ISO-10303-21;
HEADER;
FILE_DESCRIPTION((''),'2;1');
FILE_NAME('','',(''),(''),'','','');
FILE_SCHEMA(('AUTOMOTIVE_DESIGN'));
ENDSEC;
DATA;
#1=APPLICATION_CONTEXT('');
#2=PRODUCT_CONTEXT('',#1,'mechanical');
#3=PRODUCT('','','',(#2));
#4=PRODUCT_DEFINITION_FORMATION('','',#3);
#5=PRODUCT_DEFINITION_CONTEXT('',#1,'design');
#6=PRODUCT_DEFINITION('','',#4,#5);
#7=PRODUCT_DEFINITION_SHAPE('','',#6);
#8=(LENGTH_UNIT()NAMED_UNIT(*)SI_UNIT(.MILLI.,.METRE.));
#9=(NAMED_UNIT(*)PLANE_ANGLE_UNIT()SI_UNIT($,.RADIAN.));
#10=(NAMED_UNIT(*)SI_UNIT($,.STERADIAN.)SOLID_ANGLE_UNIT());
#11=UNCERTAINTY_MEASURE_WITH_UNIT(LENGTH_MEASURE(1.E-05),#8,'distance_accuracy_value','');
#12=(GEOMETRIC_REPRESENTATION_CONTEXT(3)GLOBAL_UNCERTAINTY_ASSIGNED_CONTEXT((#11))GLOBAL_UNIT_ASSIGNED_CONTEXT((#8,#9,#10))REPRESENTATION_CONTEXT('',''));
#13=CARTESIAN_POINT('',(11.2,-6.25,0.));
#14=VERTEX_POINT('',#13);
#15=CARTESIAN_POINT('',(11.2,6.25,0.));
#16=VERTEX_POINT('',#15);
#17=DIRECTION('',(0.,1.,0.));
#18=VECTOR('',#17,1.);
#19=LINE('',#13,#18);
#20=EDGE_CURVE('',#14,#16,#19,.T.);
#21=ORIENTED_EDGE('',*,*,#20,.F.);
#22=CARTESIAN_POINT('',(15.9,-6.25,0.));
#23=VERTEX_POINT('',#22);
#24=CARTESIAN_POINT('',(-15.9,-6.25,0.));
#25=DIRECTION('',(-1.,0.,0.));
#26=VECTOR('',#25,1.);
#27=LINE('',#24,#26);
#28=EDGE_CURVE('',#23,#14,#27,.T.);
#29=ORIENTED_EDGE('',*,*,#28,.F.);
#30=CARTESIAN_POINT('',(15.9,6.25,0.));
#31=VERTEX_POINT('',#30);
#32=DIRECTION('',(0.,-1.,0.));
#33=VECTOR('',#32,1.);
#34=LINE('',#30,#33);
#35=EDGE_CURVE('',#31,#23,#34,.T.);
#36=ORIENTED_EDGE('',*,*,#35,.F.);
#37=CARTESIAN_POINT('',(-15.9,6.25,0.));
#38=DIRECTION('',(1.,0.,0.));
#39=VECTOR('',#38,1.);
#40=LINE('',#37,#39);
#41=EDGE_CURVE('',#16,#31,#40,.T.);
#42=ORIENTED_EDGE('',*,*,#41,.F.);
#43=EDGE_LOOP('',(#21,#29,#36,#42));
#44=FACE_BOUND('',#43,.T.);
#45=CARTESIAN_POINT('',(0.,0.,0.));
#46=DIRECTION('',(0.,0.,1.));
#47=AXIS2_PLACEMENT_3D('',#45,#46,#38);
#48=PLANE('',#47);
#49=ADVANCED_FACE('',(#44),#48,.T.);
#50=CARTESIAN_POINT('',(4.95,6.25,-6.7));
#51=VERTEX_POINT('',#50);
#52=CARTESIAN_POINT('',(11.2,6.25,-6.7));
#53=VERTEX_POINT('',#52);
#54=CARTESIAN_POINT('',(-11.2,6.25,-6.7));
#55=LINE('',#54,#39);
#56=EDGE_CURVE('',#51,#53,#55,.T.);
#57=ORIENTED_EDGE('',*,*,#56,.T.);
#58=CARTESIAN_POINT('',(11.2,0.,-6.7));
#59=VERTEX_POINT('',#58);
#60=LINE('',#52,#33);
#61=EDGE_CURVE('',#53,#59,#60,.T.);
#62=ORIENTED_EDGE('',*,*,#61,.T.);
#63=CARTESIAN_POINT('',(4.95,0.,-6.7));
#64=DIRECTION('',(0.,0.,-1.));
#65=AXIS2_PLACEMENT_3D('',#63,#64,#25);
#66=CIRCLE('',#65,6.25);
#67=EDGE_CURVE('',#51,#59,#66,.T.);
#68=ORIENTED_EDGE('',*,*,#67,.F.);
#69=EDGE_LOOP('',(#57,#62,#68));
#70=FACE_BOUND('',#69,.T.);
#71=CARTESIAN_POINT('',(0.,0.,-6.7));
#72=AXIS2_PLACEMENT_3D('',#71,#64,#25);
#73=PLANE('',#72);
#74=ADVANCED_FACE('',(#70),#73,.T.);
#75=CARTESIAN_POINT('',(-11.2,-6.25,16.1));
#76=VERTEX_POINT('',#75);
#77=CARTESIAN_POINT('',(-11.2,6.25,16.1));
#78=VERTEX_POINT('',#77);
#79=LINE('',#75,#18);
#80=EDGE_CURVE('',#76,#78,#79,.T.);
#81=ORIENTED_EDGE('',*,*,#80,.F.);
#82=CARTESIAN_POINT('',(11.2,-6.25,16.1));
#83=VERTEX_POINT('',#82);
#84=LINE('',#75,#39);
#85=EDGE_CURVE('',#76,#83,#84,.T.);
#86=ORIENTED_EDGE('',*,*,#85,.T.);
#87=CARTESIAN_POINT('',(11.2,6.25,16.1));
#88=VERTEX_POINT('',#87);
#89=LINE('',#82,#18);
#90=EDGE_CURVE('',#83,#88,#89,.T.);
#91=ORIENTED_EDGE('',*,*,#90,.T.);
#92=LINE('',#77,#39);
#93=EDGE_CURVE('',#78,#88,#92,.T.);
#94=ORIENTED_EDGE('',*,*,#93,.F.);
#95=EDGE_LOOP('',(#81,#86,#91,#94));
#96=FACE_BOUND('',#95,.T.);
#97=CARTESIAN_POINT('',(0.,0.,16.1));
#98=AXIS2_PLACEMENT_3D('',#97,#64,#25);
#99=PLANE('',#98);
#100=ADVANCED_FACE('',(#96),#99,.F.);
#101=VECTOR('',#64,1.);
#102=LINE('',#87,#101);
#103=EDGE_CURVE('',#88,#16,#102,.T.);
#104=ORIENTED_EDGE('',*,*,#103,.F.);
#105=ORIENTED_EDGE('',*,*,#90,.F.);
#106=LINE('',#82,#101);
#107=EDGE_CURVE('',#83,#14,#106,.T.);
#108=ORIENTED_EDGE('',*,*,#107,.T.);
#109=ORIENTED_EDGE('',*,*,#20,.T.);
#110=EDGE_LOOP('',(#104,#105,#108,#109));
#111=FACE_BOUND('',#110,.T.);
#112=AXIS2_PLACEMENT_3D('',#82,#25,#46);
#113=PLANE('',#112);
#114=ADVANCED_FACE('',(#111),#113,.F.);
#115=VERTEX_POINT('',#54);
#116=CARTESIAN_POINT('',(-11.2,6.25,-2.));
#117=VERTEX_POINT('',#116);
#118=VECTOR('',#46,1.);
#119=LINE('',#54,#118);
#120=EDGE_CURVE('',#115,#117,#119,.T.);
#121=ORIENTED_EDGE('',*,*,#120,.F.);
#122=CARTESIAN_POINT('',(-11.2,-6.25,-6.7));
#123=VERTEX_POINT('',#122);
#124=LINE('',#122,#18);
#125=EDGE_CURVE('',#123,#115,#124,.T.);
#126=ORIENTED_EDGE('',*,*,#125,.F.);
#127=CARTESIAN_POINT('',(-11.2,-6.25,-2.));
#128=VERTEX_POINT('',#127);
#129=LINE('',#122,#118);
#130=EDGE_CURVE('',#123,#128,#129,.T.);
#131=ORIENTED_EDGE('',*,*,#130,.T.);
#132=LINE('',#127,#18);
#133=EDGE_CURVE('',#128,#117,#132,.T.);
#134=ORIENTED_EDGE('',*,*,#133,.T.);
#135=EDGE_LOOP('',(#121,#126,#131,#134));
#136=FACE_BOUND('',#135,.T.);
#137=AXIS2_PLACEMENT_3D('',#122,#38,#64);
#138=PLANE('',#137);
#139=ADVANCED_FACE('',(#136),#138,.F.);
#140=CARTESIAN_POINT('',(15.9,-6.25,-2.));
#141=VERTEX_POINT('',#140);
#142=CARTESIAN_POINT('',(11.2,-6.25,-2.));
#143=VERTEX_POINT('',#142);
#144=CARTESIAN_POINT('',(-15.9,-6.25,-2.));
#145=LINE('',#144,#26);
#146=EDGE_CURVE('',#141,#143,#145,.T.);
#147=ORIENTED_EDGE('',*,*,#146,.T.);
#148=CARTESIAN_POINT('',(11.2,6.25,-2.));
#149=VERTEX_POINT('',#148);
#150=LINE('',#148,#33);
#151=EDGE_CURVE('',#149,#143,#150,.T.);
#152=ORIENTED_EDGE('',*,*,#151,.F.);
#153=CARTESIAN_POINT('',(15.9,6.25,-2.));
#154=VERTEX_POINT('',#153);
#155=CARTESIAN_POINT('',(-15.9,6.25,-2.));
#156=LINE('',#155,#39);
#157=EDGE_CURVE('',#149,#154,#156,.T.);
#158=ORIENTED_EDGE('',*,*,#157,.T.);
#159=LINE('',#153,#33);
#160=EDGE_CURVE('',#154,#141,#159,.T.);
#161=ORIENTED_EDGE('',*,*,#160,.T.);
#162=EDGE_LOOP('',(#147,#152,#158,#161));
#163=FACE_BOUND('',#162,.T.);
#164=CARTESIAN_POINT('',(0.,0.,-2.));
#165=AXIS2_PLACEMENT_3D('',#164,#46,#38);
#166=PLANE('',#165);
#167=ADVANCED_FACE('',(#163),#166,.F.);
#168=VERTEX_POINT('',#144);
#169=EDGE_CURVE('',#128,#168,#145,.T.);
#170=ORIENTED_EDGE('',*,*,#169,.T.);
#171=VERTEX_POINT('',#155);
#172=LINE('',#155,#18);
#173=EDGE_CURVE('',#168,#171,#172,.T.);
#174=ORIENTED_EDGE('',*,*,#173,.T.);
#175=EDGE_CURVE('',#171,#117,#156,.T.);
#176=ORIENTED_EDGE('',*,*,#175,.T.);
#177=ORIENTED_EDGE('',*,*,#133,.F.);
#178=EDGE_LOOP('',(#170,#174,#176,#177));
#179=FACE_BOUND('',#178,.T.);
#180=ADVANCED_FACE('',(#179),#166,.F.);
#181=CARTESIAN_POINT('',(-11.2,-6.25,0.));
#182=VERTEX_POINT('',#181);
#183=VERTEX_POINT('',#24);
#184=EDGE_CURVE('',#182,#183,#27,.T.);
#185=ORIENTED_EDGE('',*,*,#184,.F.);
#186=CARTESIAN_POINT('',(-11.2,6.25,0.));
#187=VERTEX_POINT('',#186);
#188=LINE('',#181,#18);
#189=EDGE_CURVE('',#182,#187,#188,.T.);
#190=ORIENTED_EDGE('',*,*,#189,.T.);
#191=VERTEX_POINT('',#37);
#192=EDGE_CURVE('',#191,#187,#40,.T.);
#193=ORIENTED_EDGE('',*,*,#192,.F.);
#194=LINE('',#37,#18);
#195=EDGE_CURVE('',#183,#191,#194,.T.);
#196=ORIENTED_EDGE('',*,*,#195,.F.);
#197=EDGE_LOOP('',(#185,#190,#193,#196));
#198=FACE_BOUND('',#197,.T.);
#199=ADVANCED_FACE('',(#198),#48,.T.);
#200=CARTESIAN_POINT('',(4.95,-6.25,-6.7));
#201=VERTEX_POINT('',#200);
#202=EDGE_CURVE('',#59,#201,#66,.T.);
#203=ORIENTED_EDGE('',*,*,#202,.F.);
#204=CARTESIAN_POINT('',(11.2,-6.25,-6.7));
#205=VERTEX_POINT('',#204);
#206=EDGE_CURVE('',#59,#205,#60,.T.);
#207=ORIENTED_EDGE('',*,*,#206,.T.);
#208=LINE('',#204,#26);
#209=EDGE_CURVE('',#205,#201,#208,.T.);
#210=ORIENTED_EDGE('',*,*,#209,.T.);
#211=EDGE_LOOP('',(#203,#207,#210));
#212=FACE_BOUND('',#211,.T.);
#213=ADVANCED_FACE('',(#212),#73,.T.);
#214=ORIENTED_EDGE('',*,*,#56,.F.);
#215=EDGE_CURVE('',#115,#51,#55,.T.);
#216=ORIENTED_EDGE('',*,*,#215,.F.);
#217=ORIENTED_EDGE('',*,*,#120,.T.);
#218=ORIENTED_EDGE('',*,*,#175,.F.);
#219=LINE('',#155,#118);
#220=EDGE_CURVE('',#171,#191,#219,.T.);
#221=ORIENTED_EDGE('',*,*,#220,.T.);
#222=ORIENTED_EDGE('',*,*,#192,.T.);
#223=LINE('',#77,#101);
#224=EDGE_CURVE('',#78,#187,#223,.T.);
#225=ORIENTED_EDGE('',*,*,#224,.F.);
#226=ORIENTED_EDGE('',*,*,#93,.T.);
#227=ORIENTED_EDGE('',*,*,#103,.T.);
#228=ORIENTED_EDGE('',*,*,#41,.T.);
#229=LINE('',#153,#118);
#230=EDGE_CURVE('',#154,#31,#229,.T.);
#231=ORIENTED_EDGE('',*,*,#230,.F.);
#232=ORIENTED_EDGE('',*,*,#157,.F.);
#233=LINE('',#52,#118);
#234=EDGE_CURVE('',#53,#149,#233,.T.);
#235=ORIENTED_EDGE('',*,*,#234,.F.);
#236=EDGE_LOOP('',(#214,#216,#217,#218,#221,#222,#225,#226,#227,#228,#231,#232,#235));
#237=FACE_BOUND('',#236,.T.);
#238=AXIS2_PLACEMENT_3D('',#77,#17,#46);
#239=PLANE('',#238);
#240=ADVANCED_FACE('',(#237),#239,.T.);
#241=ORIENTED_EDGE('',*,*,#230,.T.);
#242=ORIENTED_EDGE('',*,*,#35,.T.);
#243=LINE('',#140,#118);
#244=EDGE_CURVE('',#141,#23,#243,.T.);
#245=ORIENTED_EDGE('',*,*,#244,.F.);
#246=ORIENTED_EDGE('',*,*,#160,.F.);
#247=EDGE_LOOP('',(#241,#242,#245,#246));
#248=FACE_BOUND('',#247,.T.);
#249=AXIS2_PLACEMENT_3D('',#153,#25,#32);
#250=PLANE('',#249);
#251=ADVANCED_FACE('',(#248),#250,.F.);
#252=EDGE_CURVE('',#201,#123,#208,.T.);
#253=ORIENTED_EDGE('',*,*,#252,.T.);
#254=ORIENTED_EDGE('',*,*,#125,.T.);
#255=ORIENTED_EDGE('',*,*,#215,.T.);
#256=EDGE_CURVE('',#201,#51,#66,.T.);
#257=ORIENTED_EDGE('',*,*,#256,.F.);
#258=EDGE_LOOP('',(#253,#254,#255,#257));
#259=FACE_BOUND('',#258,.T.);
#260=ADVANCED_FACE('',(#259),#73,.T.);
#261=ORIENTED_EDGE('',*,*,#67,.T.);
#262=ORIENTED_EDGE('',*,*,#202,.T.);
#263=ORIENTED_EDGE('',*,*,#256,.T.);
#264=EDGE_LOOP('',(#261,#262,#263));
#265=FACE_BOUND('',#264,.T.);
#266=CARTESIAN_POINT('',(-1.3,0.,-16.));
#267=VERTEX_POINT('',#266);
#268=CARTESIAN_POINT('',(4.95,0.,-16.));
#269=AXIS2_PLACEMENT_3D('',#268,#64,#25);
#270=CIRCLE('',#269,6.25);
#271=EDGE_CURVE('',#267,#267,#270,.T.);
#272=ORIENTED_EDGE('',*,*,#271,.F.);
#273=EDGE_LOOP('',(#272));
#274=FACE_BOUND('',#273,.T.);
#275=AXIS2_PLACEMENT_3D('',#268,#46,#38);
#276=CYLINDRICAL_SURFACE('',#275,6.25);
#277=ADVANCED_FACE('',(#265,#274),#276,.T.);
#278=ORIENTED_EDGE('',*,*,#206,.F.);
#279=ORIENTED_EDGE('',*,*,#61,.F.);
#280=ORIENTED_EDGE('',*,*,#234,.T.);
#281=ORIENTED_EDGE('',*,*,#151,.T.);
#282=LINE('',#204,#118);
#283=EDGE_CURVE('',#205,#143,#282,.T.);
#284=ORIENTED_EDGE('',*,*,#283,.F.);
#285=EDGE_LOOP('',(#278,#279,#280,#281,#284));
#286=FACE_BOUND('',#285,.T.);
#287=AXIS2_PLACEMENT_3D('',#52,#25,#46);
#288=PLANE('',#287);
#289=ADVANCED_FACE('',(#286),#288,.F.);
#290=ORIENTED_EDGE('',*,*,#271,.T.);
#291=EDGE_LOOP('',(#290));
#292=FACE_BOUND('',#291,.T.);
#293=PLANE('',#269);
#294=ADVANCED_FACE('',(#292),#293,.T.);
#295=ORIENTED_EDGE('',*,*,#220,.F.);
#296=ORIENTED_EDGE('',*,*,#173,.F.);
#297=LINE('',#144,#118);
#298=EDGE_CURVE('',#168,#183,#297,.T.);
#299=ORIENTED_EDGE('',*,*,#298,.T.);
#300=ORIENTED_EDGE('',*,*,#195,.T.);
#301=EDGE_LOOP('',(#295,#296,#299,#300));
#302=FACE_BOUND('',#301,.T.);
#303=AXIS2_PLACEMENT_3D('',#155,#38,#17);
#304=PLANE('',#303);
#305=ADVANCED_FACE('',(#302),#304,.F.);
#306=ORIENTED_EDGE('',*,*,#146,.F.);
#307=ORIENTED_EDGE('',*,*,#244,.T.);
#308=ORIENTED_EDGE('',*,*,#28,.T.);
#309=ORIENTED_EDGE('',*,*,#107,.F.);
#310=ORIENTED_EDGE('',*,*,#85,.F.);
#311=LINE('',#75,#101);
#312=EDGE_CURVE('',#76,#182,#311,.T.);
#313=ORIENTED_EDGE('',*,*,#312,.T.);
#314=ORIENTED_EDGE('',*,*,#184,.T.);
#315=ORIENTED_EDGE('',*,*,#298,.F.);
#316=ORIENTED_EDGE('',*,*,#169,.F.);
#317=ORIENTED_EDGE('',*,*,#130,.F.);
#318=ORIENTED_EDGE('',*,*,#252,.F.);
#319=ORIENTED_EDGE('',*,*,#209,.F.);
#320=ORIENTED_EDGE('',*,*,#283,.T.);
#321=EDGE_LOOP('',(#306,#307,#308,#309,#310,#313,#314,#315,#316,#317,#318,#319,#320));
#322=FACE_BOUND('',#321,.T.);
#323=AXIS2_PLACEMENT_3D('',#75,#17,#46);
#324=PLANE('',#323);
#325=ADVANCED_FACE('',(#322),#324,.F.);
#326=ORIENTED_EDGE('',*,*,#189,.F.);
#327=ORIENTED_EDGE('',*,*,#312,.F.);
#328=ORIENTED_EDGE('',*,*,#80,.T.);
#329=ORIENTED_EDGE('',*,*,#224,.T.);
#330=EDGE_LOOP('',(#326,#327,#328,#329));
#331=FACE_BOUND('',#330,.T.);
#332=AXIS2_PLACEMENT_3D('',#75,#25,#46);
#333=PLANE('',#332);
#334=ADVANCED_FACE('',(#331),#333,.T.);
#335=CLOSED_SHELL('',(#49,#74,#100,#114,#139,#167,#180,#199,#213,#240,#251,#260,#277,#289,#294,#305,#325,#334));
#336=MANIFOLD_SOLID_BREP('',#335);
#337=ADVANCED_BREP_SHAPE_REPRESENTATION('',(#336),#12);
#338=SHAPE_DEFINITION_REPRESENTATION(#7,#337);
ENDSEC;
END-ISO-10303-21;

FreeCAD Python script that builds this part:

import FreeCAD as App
import Part
import Sketcher
from FreeCAD import Vector


def add_polygon(sketch, points):
    """Adds a closed chain of lines whose ends are joined by coincident constraints."""
    first, n = sketch.GeometryCount, len(points)
    for a, b in zip(points, points[1:] + points[:1]):
        sketch.addGeometry(Part.LineSegment(App.Vector(*a, 0), App.Vector(*b, 0)), False)
    for i in range(n):
        sketch.addConstraint(Sketcher.Constraint("Coincident", first + i, 2, first + (i + 1) % n, 1))

doc = App.newDocument("Part")
body = doc.addObject("PartDesign::Body", "Body")

sketch1 = doc.addObject("Sketcher::SketchObject", "Sketch")
body.addObject(sketch1)
sketch1.AttachmentSupport = (doc.XY_Plane, [""])
sketch1.MapMode = "FlatFace"
add_polygon(sketch1, [(-11, 6), (-11, -6), (11, -6), (11, 6)])
sketch1.addConstraint(Sketcher.Constraint("Vertical", 0))
sketch1.addConstraint(Sketcher.Constraint("Horizontal", 1))
sketch1.addConstraint(Sketcher.Constraint("Vertical", 2))
sketch1.addConstraint(Sketcher.Constraint("Horizontal", 3))
sketch1.addConstraint(Sketcher.Constraint("Symmetric", 0, 2, 2, 2, -1, 1))
sketch1.addConstraint(Sketcher.Constraint("DistanceX", 1, 1, 1, 2, 22.4))
sketch1.addConstraint(Sketcher.Constraint("DistanceY", 0, 2, 0, 1, 12.5))
pad1 = doc.addObject("PartDesign::Pad", "Pad")
body.addObject(pad1)
pad1.Profile = sketch1
pad1.Length = 16.1

sketch2 = doc.addObject("Sketcher::SketchObject", "Sketch001")
body.addObject(sketch2)
sketch2.AttachmentSupport = (doc.XY_Plane, [""])
sketch2.MapMode = "FlatFace"
add_polygon(sketch2, [(16, 6), (16, -6), (-16, -6), (-16, 6)])
sketch2.addConstraint(Sketcher.Constraint("Vertical", 0))
sketch2.addConstraint(Sketcher.Constraint("Horizontal", 1))
sketch2.addConstraint(Sketcher.Constraint("Vertical", 2))
sketch2.addConstraint(Sketcher.Constraint("Horizontal", 3))
sketch2.addConstraint(Sketcher.Constraint("Symmetric", 0, 2, 2, 2, -1, 1))
sketch2.addConstraint(Sketcher.Constraint("DistanceX", 1, 2, 1, 1, 31.8))
sketch2.addConstraint(Sketcher.Constraint("DistanceY", 0, 2, 0, 1, 12.5))
pad2 = doc.addObject("PartDesign::Pad", "Pad001")
body.addObject(pad2)
pad2.Profile = sketch2
pad2.Length = 2
pad2.Reversed = True

sketch3 = doc.addObject("Sketcher::SketchObject", "Sketch002")
body.addObject(sketch3)
sketch3.AttachmentSupport = (doc.XY_Plane, [""])
sketch3.MapMode = "FlatFace"
sketch3.AttachmentOffset = App.Placement(Vector(0, 0, -2), App.Rotation())
add_polygon(sketch3, [(11, 6), (11, -6), (-11, -6), (-11, 6)])
sketch3.addConstraint(Sketcher.Constraint("Vertical", 0))
sketch3.addConstraint(Sketcher.Constraint("Horizontal", 1))
sketch3.addConstraint(Sketcher.Constraint("Vertical", 2))
sketch3.addConstraint(Sketcher.Constraint("Horizontal", 3))
sketch3.addConstraint(Sketcher.Constraint("Symmetric", 0, 2, 2, 2, -1, 1))
sketch3.addConstraint(Sketcher.Constraint("DistanceX", 1, 2, 1, 1, 22.4))
sketch3.addConstraint(Sketcher.Constraint("DistanceY", 0, 2, 0, 1, 12.5))
pad3 = doc.addObject("PartDesign::Pad", "Pad002")
body.addObject(pad3)
pad3.Profile = sketch3
pad3.Length = 4.7
pad3.Reversed = True

sketch4 = doc.addObject("Sketcher::SketchObject", "Sketch003")
body.addObject(sketch4)
sketch4.AttachmentSupport = (doc.XY_Plane, [""])
sketch4.MapMode = "FlatFace"
sketch4.AttachmentOffset = App.Placement(Vector(0, 0, -6.7), App.Rotation())
sketch4.addGeometry(Part.Circle(Vector(5, 0, 0), Vector(0, 0, 1), 6), False)
sketch4.addConstraint(Sketcher.Constraint("PointOnObject", 0, 3, -1))
sketch4.addConstraint(Sketcher.Constraint("Diameter", 0, 12.5))
sketch4.addConstraint(Sketcher.Constraint("DistanceX", -1, 1, 0, 3, 4.95))
pad4 = doc.addObject("PartDesign::Pad", "Pad003")
body.addObject(pad4)
pad4.Profile = sketch4
pad4.Length = 9.3
pad4.Reversed = True

doc.recompute()
